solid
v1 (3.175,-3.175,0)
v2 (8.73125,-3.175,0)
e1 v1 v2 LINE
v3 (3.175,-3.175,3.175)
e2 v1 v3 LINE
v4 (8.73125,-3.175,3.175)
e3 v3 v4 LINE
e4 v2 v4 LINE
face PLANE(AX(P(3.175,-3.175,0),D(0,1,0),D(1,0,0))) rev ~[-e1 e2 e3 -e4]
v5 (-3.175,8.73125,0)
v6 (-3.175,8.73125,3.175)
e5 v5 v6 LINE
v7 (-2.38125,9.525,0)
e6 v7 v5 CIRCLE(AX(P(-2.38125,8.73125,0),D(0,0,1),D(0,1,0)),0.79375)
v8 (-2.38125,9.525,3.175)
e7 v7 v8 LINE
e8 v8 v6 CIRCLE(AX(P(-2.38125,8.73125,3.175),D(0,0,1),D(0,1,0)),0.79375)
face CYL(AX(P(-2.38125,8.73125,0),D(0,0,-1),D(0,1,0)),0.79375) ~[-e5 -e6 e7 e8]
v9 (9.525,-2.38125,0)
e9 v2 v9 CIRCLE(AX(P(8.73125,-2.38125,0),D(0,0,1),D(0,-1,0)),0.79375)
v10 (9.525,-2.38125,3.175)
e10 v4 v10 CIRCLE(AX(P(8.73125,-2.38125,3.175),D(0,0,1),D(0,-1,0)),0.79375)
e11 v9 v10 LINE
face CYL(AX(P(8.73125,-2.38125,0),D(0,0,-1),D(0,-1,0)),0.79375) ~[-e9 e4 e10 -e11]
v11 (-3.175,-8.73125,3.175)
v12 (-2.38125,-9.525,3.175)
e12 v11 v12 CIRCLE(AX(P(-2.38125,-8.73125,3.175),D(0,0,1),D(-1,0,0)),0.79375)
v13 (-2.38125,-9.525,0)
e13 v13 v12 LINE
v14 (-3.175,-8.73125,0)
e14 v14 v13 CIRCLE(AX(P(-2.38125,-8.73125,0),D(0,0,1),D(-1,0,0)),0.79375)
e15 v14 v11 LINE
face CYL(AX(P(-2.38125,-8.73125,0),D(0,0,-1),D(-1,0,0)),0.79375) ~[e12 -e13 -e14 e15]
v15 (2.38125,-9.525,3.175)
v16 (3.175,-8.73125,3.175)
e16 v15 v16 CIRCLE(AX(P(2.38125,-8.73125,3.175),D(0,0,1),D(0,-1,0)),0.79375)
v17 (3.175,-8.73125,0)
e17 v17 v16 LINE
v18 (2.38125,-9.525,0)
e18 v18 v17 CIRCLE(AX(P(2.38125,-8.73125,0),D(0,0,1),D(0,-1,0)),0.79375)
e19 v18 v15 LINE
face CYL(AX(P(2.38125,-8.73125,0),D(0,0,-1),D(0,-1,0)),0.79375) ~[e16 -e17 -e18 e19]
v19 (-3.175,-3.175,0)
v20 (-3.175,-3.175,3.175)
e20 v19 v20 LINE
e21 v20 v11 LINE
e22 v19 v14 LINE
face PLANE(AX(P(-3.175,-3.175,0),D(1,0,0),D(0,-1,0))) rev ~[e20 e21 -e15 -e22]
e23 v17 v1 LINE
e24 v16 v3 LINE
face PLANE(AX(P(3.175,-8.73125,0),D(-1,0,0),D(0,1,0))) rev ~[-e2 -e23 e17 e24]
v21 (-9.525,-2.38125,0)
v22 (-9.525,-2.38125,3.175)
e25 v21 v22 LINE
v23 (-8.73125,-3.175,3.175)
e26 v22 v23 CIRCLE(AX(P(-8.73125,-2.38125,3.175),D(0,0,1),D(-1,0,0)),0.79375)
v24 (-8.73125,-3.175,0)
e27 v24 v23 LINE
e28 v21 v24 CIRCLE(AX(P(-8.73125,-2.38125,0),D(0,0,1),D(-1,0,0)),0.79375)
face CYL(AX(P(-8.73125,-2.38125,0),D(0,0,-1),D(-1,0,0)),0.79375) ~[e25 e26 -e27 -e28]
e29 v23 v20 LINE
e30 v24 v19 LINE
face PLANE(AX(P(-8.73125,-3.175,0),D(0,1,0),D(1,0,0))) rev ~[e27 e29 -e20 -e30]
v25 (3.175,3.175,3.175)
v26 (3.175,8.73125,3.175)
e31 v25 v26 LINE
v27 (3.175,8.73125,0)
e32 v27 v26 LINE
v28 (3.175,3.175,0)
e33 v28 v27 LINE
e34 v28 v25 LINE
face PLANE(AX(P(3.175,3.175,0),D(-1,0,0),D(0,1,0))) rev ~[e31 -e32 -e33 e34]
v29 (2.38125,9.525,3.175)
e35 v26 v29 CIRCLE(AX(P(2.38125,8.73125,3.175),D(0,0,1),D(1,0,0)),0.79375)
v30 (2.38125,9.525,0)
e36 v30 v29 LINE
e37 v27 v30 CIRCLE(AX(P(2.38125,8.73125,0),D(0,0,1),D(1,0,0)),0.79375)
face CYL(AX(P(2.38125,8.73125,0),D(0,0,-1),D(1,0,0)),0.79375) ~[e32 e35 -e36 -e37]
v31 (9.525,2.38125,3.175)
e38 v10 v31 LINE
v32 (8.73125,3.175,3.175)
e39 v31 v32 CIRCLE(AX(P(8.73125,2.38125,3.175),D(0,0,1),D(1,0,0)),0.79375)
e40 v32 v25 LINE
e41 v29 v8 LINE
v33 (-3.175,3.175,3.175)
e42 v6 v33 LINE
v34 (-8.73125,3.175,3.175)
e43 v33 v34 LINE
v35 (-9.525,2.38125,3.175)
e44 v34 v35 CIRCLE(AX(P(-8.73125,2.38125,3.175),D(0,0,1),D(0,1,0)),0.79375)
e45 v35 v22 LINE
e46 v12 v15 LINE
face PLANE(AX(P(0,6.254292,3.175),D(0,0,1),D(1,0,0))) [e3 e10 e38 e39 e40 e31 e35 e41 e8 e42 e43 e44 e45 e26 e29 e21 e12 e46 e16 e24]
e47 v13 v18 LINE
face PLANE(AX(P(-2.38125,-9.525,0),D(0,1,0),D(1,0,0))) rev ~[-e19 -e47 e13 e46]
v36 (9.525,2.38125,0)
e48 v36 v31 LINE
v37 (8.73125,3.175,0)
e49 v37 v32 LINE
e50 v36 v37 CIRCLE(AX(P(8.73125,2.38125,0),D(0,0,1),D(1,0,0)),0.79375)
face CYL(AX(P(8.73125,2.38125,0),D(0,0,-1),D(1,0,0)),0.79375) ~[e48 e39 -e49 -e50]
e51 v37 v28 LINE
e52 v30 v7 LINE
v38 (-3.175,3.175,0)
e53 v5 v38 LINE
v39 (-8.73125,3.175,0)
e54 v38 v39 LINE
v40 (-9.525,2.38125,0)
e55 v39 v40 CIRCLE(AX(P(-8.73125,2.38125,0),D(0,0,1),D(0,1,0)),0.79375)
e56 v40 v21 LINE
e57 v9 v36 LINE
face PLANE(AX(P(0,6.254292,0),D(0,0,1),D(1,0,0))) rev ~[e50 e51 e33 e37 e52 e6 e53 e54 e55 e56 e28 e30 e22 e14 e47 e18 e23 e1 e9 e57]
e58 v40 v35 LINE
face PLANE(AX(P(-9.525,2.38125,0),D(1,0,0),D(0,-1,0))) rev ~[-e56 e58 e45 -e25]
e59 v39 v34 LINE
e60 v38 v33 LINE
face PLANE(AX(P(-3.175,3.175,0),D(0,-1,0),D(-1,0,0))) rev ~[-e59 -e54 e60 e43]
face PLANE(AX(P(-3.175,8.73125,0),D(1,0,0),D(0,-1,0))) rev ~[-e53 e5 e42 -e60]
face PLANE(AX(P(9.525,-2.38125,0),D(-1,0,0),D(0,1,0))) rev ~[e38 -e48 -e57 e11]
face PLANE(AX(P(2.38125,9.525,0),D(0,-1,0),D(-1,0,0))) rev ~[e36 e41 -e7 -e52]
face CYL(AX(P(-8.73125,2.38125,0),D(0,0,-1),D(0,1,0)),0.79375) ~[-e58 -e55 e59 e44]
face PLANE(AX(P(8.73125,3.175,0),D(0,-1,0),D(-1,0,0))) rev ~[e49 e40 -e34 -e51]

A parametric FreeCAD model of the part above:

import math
import FreeCAD as App
import Part
import Sketcher

V = App.Vector
Q = App.Units.Quantity

doc = App.newDocument("Part")
params = doc.addObject("Spreadsheet::Sheet", "Params")
for row, (alias, value) in enumerate([
    ("sketch1_radius", "0.03125 in"),
    ("sketch1_width", "0.1875 in"),
    ("sketch1_width2", "0.21875 in"),
    ("pad1_length", "0.125 in"),
], start=1):
    params.set(f"A{row}", alias)
    params.set(f"B{row}", "=" + value)
    params.setAlias(f"B{row}", alias)

body = doc.addObject("PartDesign::Body", "Body")

# Sketch on XY plane
sketch1 = body.newObject("Sketcher::SketchObject", "Sketch")
sketch1.AttachmentSupport = (doc.getObject("XY_Plane"), [""])
sketch1.MapMode = "FlatFace"
sketch1.addGeometry([
    Part.LineSegment(V(2.4, 9.5, 0), V(-2.4, 9.5, 0)),  # 0
    Part.ArcOfCircle(Part.Circle(V(-2.4, 8.7, 0), V(0, 0, 1), 0.8), math.radians(90), math.radians(180)),  # 1
    Part.LineSegment(V(-3.2, 8.7, 0), V(-3.2, 3.2, 0)),  # 2
    Part.LineSegment(V(-3.2, 3.2, 0), V(-8.7, 3.2, 0)),  # 3
    Part.ArcOfCircle(Part.Circle(V(-8.7, 2.4, 0), V(0, 0, 1), 0.8), math.radians(90), math.radians(180)),  # 4
    Part.LineSegment(V(-9.5, 2.4, 0), V(-9.5, -2.4, 0)),  # 5
    Part.ArcOfCircle(Part.Circle(V(-8.7, -2.4, 0), V(0, 0, 1), 0.8), math.radians(180), math.radians(270)),  # 6
    Part.LineSegment(V(-8.7, -3.2, 0), V(-3.2, -3.2, 0)),  # 7
    Part.LineSegment(V(-3.2, -3.2, 0), V(-3.2, -8.7, 0)),  # 8
    Part.ArcOfCircle(Part.Circle(V(-2.4, -8.7, 0), V(0, 0, 1), 0.8), math.radians(180), math.radians(270)),  # 9
    Part.LineSegment(V(-2.4, -9.5, 0), V(2.4, -9.5, 0)),  # 10
    Part.ArcOfCircle(Part.Circle(V(2.4, -8.7, 0), V(0, 0, 1), 0.8), math.radians(-90), math.radians(0)),  # 11
    Part.LineSegment(V(3.2, -8.7, 0), V(3.2, -3.2, 0)),  # 12
    Part.LineSegment(V(3.2, -3.2, 0), V(8.7, -3.2, 0)),  # 13
    Part.ArcOfCircle(Part.Circle(V(8.7, -2.4, 0), V(0, 0, 1), 0.8), math.radians(-90), math.radians(0)),  # 14
    Part.LineSegment(V(9.5, -2.4, 0), V(9.5, 2.4, 0)),  # 15
    Part.ArcOfCircle(Part.Circle(V(8.7, 2.4, 0), V(0, 0, 1), 0.8), math.radians(0), math.radians(90)),  # 16
    Part.LineSegment(V(8.7, 3.2, 0), V(3.2, 3.2, 0)),  # 17
    Part.LineSegment(V(3.2, 3.2, 0), V(3.2, 8.7, 0)),  # 18
    Part.ArcOfCircle(Part.Circle(V(2.4, 8.7, 0), V(0, 0, 1), 0.8), math.radians(0), math.radians(90)),  # 19
], False)
sketch1.addConstraint([
    Sketcher.Constraint("Tangent", 0, 2, 1, 1),
    Sketcher.Constraint("Tangent", 1, 2, 2, 1),
    Sketcher.Constraint("Coincident", 2, 2, 3, 1),
    Sketcher.Constraint("Tangent", 3, 2, 4, 1),
    Sketcher.Constraint("Tangent", 4, 2, 5, 1),
    Sketcher.Constraint("Tangent", 5, 2, 6, 1),
    Sketcher.Constraint("Tangent", 6, 2, 7, 1),
    Sketcher.Constraint("Coincident", 7, 2, 8, 1),
    Sketcher.Constraint("Tangent", 8, 2, 9, 1),
    Sketcher.Constraint("Tangent", 9, 2, 10, 1),
    Sketcher.Constraint("Tangent", 10, 2, 11, 1),
    Sketcher.Constraint("Tangent", 11, 2, 12, 1),
    Sketcher.Constraint("Coincident", 12, 2, 13, 1),
    Sketcher.Constraint("Tangent", 13, 2, 14, 1),
    Sketcher.Constraint("Tangent", 14, 2, 15, 1),
    Sketcher.Constraint("Tangent", 15, 2, 16, 1),
    Sketcher.Constraint("Tangent", 16, 2, 17, 1),
    Sketcher.Constraint("Coincident", 17, 2, 18, 1),
    Sketcher.Constraint("Tangent", 18, 2, 19, 1),
    Sketcher.Constraint("Tangent", 19, 2, 0, 1),
    Sketcher.Constraint("Horizontal", 0),
    Sketcher.Constraint("Vertical", 2),
    Sketcher.Constraint("Horizontal", 3),
    Sketcher.Constraint("Vertical", 5),
    Sketcher.Constraint("Horizontal", 7),
    Sketcher.Constraint("Vertical", 8),
    Sketcher.Constraint("Horizontal", 10),
    Sketcher.Constraint("Vertical", 12),
    Sketcher.Constraint("Horizontal", 13),
    Sketcher.Constraint("Vertical", 15),
    Sketcher.Constraint("Horizontal", 17),
    Sketcher.Constraint("Vertical", 18),
    Sketcher.Constraint("Equal", 1, 4),
    Sketcher.Constraint("Equal", 4, 6),
    Sketcher.Constraint("Equal", 6, 9),
    Sketcher.Constraint("Equal", 9, 11),
    Sketcher.Constraint("Equal", 11, 14),
    Sketcher.Constraint("Equal", 14, 16),
    Sketcher.Constraint("Equal", 16, 19),
    Sketcher.Constraint("Symmetric", 1, 3, 11, 3, -1, 1),
    Sketcher.Constraint("Symmetric", 4, 3, 14, 3, -1, 1),
    Sketcher.Constraint("Symmetric", 7, 2, 17, 2, -1, 1),
    Sketcher.Constraint("Symmetric", 7, 2, 12, 2, -2),
    Sketcher.Constraint("Equal", 17, 2),
    Sketcher.Constraint("Equal", 10, 5),
    Sketcher.Constraint("Radius", 1, Q("0.03125 in")),
    Sketcher.Constraint("DistanceX", 0, 2, 0, 1, Q("0.1875 in")),
    Sketcher.Constraint("DistanceX", 3, 2, 3, 1, Q("0.21875 in")),
])
sketch1.setExpression("Constraints[45]", "Params.sketch1_radius")
sketch1.setExpression("Constraints[46]", "Params.sketch1_width")
sketch1.setExpression("Constraints[47]", "Params.sketch1_width2")
pad1 = body.newObject("PartDesign::Pad", "Pad")
pad1.Profile = sketch1
pad1.setExpression("Length", "Params.pad1_length")

doc.recompute()
